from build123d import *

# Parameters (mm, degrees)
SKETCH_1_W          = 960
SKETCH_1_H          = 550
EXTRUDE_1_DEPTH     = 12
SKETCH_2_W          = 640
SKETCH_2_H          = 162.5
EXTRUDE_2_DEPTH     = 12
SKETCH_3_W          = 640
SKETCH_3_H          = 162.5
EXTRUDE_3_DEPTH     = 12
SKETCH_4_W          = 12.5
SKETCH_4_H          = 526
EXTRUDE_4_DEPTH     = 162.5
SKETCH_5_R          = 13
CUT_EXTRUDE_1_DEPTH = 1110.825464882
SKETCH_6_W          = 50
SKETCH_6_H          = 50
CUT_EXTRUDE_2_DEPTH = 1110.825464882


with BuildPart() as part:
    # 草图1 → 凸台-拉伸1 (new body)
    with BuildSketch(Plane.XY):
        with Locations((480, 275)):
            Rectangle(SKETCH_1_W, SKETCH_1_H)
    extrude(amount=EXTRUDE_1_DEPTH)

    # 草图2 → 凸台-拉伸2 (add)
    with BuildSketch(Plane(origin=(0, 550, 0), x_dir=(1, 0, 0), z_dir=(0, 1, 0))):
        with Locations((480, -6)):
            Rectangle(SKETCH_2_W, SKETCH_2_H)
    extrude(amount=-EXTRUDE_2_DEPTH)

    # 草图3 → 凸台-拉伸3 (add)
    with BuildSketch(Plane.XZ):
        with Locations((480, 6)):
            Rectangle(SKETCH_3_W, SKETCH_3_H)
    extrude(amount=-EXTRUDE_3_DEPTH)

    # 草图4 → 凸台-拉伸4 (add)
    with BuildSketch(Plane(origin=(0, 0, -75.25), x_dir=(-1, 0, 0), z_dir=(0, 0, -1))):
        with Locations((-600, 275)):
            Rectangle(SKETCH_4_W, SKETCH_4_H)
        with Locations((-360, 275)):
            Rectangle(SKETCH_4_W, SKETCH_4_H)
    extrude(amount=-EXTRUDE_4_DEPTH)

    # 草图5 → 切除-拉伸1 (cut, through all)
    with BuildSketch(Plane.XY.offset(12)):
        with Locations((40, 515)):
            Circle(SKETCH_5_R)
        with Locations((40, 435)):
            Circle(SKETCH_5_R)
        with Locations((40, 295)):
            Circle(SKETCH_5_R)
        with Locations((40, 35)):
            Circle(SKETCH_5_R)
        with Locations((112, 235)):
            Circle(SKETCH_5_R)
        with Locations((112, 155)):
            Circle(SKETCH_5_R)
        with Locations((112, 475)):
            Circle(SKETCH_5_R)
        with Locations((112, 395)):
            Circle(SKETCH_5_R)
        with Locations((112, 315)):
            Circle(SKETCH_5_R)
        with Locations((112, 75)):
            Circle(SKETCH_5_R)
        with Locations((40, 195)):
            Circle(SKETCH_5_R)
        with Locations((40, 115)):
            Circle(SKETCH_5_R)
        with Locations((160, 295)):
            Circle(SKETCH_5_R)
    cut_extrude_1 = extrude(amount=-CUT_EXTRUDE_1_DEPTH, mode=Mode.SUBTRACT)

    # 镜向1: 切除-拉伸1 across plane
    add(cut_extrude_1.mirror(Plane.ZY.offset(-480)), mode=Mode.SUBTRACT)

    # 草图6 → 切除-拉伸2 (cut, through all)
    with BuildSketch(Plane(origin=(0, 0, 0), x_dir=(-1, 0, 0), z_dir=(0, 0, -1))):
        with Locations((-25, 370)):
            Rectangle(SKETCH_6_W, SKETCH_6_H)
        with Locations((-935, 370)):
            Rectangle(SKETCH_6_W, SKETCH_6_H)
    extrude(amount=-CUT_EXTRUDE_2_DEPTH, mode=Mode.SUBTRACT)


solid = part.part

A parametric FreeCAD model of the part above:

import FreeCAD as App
import Part
import Sketcher

V = App.Vector


def add_polygon(sketch, points):
    """Adds a closed chain of lines whose ends are joined by coincident constraints."""
    first, n = sketch.GeometryCount, len(points)
    for a, b in zip(points, points[1:] + points[:1]):
        sketch.addGeometry(Part.LineSegment(App.Vector(*a, 0), App.Vector(*b, 0)), False)
    for i in range(n):
        sketch.addConstraint(Sketcher.Constraint("Coincident", first + i, 2, first + (i + 1) % n, 1))

doc = App.newDocument("Part")
body = doc.addObject("PartDesign::Body", "Body")

# Sketch on XY plane
sketch1 = body.newObject("Sketcher::SketchObject", "Sketch")
sketch1.AttachmentSupport = (doc.getObject("XY_Plane"), [""])
sketch1.MapMode = "FlatFace"
add_polygon(sketch1, [(0, 550), (0, 0), (960, 0), (960, 550)])  # lines 0-3
sketch1.addConstraint(Sketcher.Constraint("Vertical", 0))
sketch1.addConstraint(Sketcher.Constraint("Horizontal", 1))
sketch1.addConstraint(Sketcher.Constraint("Vertical", 2))
sketch1.addConstraint(Sketcher.Constraint("Horizontal", 3))
sketch1.addConstraint(Sketcher.Constraint("Coincident", 0, 2, -1, 1))
sketch1.addConstraint(Sketcher.Constraint("DistanceX", 1, 1, 1, 2, 960.0))
sketch1.addConstraint(Sketcher.Constraint("DistanceY", 0, 2, 0, 1, 550.0))
pad1 = body.newObject("PartDesign::Pad", "Pad")
pad1.Profile = sketch1
pad1.Length = 12

# Sketch on XZ plane
sketch2 = body.newObject("Sketcher::SketchObject", "Sketch001")
sketch2.AttachmentSupport = (doc.getObject("XZ_Plane"), [""])
sketch2.MapMode = "FlatFace"
sketch2.AttachmentOffset = App.Placement(V(0, 0, -550), App.Rotation())
add_polygon(sketch2, [(160, -75.25), (160, 87.25), (800, 87.25), (800, -75.25)])  # lines 0-3
sketch2.addConstraint(Sketcher.Constraint("Vertical", 0))
sketch2.addConstraint(Sketcher.Constraint("Horizontal", 1))
sketch2.addConstraint(Sketcher.Constraint("Vertical", 2))
sketch2.addConstraint(Sketcher.Constraint("Horizontal", 3))
sketch2.addConstraint(Sketcher.Constraint("DistanceX", 1, 1, 1, 2, 640.0))
sketch2.addConstraint(Sketcher.Constraint("DistanceY", 0, 1, 0, 2, 162.5))
sketch2.addConstraint(Sketcher.Constraint("DistanceX", -1, 1, 0, 2, 160.0))
sketch2.addConstraint(Sketcher.Constraint("DistanceY", -1, 1, 0, 2, 87.25))
pad2 = body.newObject("PartDesign::Pad", "Pad001")
pad2.Profile = sketch2
pad2.Length = 12

# Sketch on XZ plane
sketch3 = body.newObject("Sketcher::SketchObject", "Sketch002")
sketch3.AttachmentSupport = (doc.getObject("XZ_Plane"), [""])
sketch3.MapMode = "FlatFace"
add_polygon(sketch3, [(160, 87.25), (160, -75.25), (800, -75.25), (800, 87.25)])  # lines 0-3
sketch3.addConstraint(Sketcher.Constraint("Vertical", 0))
sketch3.addConstraint(Sketcher.Constraint("Horizontal", 1))
sketch3.addConstraint(Sketcher.Constraint("Vertical", 2))
sketch3.addConstraint(Sketcher.Constraint("Horizontal", 3))
sketch3.addConstraint(Sketcher.Constraint("DistanceX", 1, 1, 1, 2, 640.0))
sketch3.addConstraint(Sketcher.Constraint("DistanceY", 0, 2, 0, 1, 162.5))
sketch3.addConstraint(Sketcher.Constraint("DistanceX", -1, 1, 0, 2, 160.0))
sketch3.addConstraint(Sketcher.Constraint("DistanceY", 0, 2, -1, 1, 75.25))
pad3 = body.newObject("PartDesign::Pad", "Pad002")
pad3.Profile = sketch3
pad3.Length = 12
pad3.Reversed = True

# Sketch on XY plane
sketch4 = body.newObject("Sketcher::SketchObject", "Sketch003")
sketch4.AttachmentSupport = (doc.getObject("XY_Plane"), [""])
sketch4.MapMode = "FlatFace"
sketch4.AttachmentOffset = App.Placement(V(0, 0, -75.25), App.Rotation())
add_polygon(sketch4, [(606.25, 538), (606.25, 12), (593.75, 12), (593.75, 538)])  # lines 0-3
add_polygon(sketch4, [(366.25, 538), (366.25, 12), (353.75, 12), (353.75, 538)])  # lines 4-7
sketch4.addConstraint(Sketcher.Constraint("Vertical", 0))
sketch4.addConstraint(Sketcher.Constraint("Horizontal", 1))
sketch4.addConstraint(Sketcher.Constraint("Vertical", 2))
sketch4.addConstraint(Sketcher.Constraint("Horizontal", 3))
sketch4.addConstraint(Sketcher.Constraint("Vertical", 4))
sketch4.addConstraint(Sketcher.Constraint("Horizontal", 5))
sketch4.addConstraint(Sketcher.Constraint("Vertical", 6))
sketch4.addConstraint(Sketcher.Constraint("Horizontal", 7))
sketch4.addConstraint(Sketcher.Constraint("Horizontal", 1, 2, 4, 2))
sketch4.addConstraint(Sketcher.Constraint("Horizontal", 3, 2, 6, 2))
sketch4.addConstraint(Sketcher.Constraint("Equal", 3, 5))
sketch4.addConstraint(Sketcher.Constraint("DistanceY", 0, 2, 0, 1, 526.0))
sketch4.addConstraint(Sketcher.Constraint("DistanceX", 1, 2, 1, 1, 12.5))
sketch4.addConstraint(Sketcher.Constraint("DistanceY", -1, 1, 0, 2, 12.0))
sketch4.addConstraint(Sketcher.Constraint("DistanceX", 4, 2, 0, 2, 240.0))
sketch4.addConstraint(Sketcher.Constraint("DistanceX", -1, 1, 0, 2, 606.25))
pad4 = body.newObject("PartDesign::Pad", "Pad003")
pad4.Profile = sketch4
pad4.Length = 162.5

# Sketch on XY plane
sketch5 = body.newObject("Sketcher::SketchObject", "Sketch004")
sketch5.AttachmentSupport = (doc.getObject("XY_Plane"), [""])
sketch5.MapMode = "FlatFace"
sketch5.AttachmentOffset = App.Placement(V(0, 0, 12), App.Rotation())
sketch5.addGeometry(Part.Circle(V(40, 515, 0), V(0, 0, 1), 13), False)
sketch5.addGeometry(Part.Circle(V(40, 435, 0), V(0, 0, 1), 13), False)
sketch5.addGeometry(Part.Circle(V(40, 295, 0), V(0, 0, 1), 13), False)
sketch5.addGeometry(Part.Circle(V(40, 35, 0), V(0, 0, 1), 13), False)
sketch5.addGeometry(Part.Circle(V(112, 235, 0), V(0, 0, 1), 13), False)
sketch5.addGeometry(Part.Circle(V(112, 155, 0), V(0, 0, 1), 13), False)
sketch5.addGeometry(Part.Circle(V(112, 475, 0), V(0, 0, 1), 13), False)
sketch5.addGeometry(Part.Circle(V(112, 395, 0), V(0, 0, 1), 13), False)
sketch5.addGeometry(Part.Circle(V(112, 315, 0), V(0, 0, 1), 13), False)
sketch5.addGeometry(Part.Circle(V(112, 75, 0), V(0, 0, 1), 13), False)
sketch5.addGeometry(Part.Circle(V(40, 195, 0), V(0, 0, 1), 13), False)
sketch5.addGeometry(Part.Circle(V(40, 115, 0), V(0, 0, 1), 13), False)
sketch5.addGeometry(Part.Circle(V(160, 295, 0), V(0, 0, 1), 13), False)
sketch5.addConstraint(Sketcher.Constraint("Equal", 0, 1))
sketch5.addConstraint(Sketcher.Constraint("Equal", 1, 2))
sketch5.addConstraint(Sketcher.Constraint("Equal", 2, 3))
sketch5.addConstraint(Sketcher.Constraint("Equal", 3, 4))
sketch5.addConstraint(Sketcher.Constraint("Equal", 4, 5))
sketch5.addConstraint(Sketcher.Constraint("Equal", 5, 6))
sketch5.addConstraint(Sketcher.Constraint("Equal", 6, 7))
sketch5.addConstraint(Sketcher.Constraint("Equal", 7, 8))
sketch5.addConstraint(Sketcher.Constraint("Equal", 8, 9))
sketch5.addConstraint(Sketcher.Constraint("Equal", 9, 10))
sketch5.addConstraint(Sketcher.Constraint("Equal", 10, 11))
sketch5.addConstraint(Sketcher.Constraint("Equal", 11, 12))
sketch5.addConstraint(Sketcher.Constraint("Horizontal", 2, 3, 12, 3))
sketch5.addConstraint(Sketcher.Constraint("Vertical", 0, 3, 1, 3))
sketch5.addConstraint(Sketcher.Constraint("Vertical", 1, 3, 2, 3))
sketch5.addConstraint(Sketcher.Constraint("Vertical", 2, 3, 3, 3))
sketch5.addConstraint(Sketcher.Constraint("Vertical", 4, 3, 5, 3))
sketch5.addConstraint(Sketcher.Constraint("Vertical", 5, 3, 6, 3))
sketch5.addConstraint(Sketcher.Constraint("Vertical", 6, 3, 7, 3))
sketch5.addConstraint(Sketcher.Constraint("Vertical", 7, 3, 8, 3))
sketch5.addConstraint(Sketcher.Constraint("Vertical", 8, 3, 9, 3))
sketch5.addConstraint(Sketcher.Constraint("Vertical", 3, 3, 10, 3))
sketch5.addConstraint(Sketcher.Constraint("Vertical", 10, 3, 11, 3))
sketch5.addConstraint(Sketcher.Constraint("Diameter", 0, 26.0))
sketch5.addConstraint(Sketcher.Constraint("DistanceX", -1, 1, 0, 3, 40.0))
sketch5.addConstraint(Sketcher.Constraint("DistanceY", -1, 1, 0, 3, 515.0))
sketch5.addConstraint(Sketcher.Constraint("DistanceY", -1, 1, 1, 3, 435.0))
sketch5.addConstraint(Sketcher.Constraint("DistanceY", -1, 1, 2, 3, 295.0))
sketch5.addConstraint(Sketcher.Constraint("DistanceY", -1, 1, 3, 3, 35.0))
sketch5.addConstraint(Sketcher.Constraint("DistanceX", -1, 1, 4, 3, 112.0))
sketch5.addConstraint(Sketcher.Constraint("DistanceY", -1, 1, 4, 3, 235.0))
sketch5.addConstraint(Sketcher.Constraint("DistanceY", -1, 1, 5, 3, 155.0))
sketch5.addConstraint(Sketcher.Constraint("DistanceY", -1, 1, 6, 3, 475.0))
sketch5.addConstraint(Sketcher.Constraint("DistanceY", -1, 1, 7, 3, 395.0))
sketch5.addConstraint(Sketcher.Constraint("DistanceY", -1, 1, 8, 3, 315.0))
sketch5.addConstraint(Sketcher.Constraint("DistanceY", -1, 1, 9, 3, 75.0))
sketch5.addConstraint(Sketcher.Constraint("DistanceY", -1, 1, 10, 3, 195.0))
sketch5.addConstraint(Sketcher.Constraint("DistanceY", -1, 1, 11, 3, 115.0))
sketch5.addConstraint(Sketcher.Constraint("DistanceX", -1, 1, 12, 3, 160.0))
pocket1 = body.newObject("PartDesign::Pocket", "Pocket")
pocket1.Profile = sketch5
pocket1.Type = "ThroughAll"
doc.recompute()

datumplane = body.newObject("PartDesign::Plane", "DatumPlane")
datumplane.AttachmentSupport = (doc.getObject("YZ_Plane"), [""])
datumplane.MapMode = "FlatFace"
datumplane.AttachmentOffset = App.Placement(V(0, 0, 480), App.Rotation())
mirrored = body.newObject("PartDesign::Mirrored", "Mirrored")
mirrored.Originals = [pocket1]
mirrored.MirrorPlane = (datumplane, [""])
body.Tip = mirrored

# Sketch on XY plane
sketch6 = body.newObject("Sketcher::SketchObject", "Sketch005")
sketch6.AttachmentSupport = (doc.getObject("XY_Plane"), [""])
sketch6.MapMode = "FlatFace"
add_polygon(sketch6, [(50, 395), (50, 345), (0, 345), (0, 395)])  # lines 0-3
add_polygon(sketch6, [(960, 395), (960, 345), (910, 345), (910, 395)])  # lines 4-7
sketch6.addConstraint(Sketcher.Constraint("Vertical", 0))
sketch6.addConstraint(Sketcher.Constraint("Horizontal", 1))
sketch6.addConstraint(Sketcher.Constraint("Vertical", 2))
sketch6.addConstraint(Sketcher.Constraint("Horizontal", 3))
sketch6.addConstraint(Sketcher.Constraint("Vertical", 4))
sketch6.addConstraint(Sketcher.Constraint("Horizontal", 5))
sketch6.addConstraint(Sketcher.Constraint("Vertical", 6))
sketch6.addConstraint(Sketcher.Constraint("Horizontal", 7))
sketch6.addConstraint(Sketcher.Constraint("PointOnObject", 1, 2, -2))
sketch6.addConstraint(Sketcher.Constraint("Horizontal", 1, 2, 4, 2))
sketch6.addConstraint(Sketcher.Constraint("Horizontal", 3, 2, 6, 2))
sketch6.addConstraint(Sketcher.Constraint("Equal", 3, 5))
sketch6.addConstraint(Sketcher.Constraint("Equal", 7, 0))
sketch6.addConstraint(Sketcher.Constraint("DistanceX", 1, 2, 1, 1, 50.0))
sketch6.addConstraint(Sketcher.Constraint("DistanceY", -1, 1, 0, 2, 345.0))
sketch6.addConstraint(Sketcher.Constraint("DistanceX", -1, 1, 4, 2, 960.0))
pocket2 = body.newObject("PartDesign::Pocket", "Pocket001")
pocket2.Profile = sketch6
pocket2.Type = "ThroughAll"
pocket2.Reversed = True

doc.recompute()
